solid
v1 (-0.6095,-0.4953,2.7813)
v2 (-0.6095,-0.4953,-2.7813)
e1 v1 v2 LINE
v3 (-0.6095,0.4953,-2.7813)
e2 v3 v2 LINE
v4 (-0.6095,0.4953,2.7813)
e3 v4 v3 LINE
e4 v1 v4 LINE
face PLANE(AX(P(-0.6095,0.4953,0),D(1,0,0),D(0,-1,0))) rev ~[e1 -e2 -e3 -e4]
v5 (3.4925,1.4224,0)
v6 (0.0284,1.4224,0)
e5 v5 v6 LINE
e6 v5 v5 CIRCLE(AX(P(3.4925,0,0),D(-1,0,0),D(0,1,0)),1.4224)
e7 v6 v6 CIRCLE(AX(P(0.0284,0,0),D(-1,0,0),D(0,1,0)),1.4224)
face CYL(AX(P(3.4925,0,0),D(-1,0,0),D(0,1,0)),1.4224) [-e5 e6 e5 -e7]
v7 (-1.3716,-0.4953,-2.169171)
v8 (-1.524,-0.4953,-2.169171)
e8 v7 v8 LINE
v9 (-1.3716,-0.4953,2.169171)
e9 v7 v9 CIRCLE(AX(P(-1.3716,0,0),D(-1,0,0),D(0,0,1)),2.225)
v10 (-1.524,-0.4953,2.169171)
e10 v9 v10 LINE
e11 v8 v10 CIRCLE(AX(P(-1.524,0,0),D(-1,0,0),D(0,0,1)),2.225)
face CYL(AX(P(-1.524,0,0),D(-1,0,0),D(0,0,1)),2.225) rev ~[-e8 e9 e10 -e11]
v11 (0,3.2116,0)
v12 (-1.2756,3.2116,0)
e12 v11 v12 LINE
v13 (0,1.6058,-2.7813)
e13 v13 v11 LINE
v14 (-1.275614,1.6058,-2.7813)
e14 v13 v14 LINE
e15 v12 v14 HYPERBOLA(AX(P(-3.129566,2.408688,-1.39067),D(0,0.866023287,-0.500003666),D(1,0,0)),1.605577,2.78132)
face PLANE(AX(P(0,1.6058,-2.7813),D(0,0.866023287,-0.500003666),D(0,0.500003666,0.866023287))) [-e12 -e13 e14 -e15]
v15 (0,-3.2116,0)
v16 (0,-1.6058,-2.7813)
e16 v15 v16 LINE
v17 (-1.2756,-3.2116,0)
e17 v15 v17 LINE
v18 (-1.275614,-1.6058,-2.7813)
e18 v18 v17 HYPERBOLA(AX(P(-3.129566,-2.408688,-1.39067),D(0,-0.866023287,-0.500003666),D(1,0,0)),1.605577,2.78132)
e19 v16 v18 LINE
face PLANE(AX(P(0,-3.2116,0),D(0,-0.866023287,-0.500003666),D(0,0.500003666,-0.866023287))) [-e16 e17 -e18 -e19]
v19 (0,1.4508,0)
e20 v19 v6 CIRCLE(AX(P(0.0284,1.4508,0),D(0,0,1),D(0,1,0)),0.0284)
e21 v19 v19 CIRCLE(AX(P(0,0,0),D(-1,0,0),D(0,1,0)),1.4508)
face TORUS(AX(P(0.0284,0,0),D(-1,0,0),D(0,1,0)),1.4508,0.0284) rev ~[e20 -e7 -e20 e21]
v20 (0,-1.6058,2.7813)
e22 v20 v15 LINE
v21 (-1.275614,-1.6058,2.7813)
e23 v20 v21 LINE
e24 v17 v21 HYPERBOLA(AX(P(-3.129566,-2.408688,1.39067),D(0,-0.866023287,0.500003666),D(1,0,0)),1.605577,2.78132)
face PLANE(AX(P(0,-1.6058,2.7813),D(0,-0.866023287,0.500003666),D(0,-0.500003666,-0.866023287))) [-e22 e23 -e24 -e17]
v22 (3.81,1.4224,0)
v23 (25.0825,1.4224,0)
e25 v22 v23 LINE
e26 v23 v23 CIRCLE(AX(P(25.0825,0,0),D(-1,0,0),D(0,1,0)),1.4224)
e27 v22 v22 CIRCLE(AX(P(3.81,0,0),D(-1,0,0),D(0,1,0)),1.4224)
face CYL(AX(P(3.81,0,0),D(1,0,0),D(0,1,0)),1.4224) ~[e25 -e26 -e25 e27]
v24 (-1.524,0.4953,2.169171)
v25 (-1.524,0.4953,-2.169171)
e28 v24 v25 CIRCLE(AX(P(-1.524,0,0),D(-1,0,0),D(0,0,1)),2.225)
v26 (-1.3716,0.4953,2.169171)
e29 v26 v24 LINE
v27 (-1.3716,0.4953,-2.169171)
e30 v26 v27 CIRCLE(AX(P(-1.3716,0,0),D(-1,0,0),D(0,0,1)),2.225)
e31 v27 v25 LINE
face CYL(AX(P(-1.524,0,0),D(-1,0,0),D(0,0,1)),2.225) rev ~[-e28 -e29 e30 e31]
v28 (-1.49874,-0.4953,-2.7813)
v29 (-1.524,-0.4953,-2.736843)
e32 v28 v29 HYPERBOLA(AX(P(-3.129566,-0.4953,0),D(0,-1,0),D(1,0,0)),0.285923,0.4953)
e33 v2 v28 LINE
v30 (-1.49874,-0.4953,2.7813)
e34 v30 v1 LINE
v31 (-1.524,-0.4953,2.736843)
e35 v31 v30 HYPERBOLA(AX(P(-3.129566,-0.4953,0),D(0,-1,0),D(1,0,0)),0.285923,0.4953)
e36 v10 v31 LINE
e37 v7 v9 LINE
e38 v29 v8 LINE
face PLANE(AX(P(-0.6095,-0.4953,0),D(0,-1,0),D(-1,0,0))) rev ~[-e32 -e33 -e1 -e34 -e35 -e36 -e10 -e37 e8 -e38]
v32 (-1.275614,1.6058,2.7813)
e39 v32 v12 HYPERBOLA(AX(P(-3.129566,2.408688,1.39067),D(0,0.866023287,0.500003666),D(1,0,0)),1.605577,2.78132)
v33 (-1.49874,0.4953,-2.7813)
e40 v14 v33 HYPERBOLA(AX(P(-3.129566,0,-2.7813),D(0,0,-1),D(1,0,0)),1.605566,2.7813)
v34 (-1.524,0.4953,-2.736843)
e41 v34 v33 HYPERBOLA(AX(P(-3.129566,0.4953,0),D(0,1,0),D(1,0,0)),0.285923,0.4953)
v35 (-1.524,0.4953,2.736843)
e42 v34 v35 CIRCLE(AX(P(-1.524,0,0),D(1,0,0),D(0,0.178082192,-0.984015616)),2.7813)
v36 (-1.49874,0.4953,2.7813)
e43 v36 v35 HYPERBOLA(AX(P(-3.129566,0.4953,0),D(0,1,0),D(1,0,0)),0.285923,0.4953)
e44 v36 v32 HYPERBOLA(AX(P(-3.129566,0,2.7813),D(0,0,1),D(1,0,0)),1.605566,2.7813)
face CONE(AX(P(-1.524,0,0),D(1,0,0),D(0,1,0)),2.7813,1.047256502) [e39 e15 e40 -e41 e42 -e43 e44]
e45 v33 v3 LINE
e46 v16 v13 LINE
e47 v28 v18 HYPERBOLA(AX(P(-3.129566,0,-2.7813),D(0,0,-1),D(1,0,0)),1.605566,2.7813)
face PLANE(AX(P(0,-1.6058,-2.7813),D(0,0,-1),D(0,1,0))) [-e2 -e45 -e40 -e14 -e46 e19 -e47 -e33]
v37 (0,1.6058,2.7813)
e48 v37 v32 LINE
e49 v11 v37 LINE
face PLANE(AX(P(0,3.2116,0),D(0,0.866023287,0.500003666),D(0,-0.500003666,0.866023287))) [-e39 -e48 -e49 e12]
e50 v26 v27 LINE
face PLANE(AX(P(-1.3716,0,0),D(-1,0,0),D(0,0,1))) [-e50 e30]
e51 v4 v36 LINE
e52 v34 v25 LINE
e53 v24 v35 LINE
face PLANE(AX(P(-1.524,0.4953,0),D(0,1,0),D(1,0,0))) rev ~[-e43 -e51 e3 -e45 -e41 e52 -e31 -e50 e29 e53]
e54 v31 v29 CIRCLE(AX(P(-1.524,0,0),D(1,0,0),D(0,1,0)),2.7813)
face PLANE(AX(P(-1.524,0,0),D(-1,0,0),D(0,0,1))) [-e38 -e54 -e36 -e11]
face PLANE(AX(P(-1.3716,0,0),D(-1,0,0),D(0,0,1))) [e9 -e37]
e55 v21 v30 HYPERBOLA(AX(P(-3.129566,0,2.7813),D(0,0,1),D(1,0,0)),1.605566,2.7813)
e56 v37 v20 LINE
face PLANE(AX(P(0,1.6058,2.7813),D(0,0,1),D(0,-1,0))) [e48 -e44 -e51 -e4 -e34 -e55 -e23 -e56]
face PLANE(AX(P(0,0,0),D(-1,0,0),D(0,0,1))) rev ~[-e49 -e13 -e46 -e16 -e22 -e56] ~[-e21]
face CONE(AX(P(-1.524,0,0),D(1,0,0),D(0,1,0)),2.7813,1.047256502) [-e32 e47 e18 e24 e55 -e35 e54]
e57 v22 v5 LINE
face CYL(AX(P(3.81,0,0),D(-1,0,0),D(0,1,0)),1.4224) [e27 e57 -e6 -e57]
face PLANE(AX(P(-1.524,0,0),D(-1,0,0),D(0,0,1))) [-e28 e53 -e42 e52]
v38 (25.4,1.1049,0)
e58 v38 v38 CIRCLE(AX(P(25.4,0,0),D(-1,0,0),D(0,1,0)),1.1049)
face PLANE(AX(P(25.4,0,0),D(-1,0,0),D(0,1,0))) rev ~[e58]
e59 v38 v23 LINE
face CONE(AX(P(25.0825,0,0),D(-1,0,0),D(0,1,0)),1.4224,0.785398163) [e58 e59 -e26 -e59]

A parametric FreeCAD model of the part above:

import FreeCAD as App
import Part
import Sketcher
from FreeCAD import Vector
Q = App.Units.Quantity


def edges_at(feature, points):
    """Names of the edges that pass closest to the given points."""
    edges = feature.Shape.Edges
    near = lambda p: min(range(len(edges)), key=lambda i: edges[i].distToShape(Part.Vertex(*p))[0])
    return sorted({f"Edge{near(p) + 1}" for p in points})


def add_polygon(sketch, points):
    """Adds a closed chain of lines whose ends are joined by coincident constraints."""
    first, n = sketch.GeometryCount, len(points)
    for a, b in zip(points, points[1:] + points[:1]):
        sketch.addGeometry(Part.LineSegment(App.Vector(*a, 0), App.Vector(*b, 0)), False)
    for i in range(n):
        sketch.addConstraint(Sketcher.Constraint("Coincident", first + i, 2, first + (i + 1) % n, 1))

doc = App.newDocument("Part")
body = doc.addObject("PartDesign::Body", "Body")

# Sketch on XY plane
sketch1 = doc.addObject("Sketcher::SketchObject", "Sketch")
body.addObject(sketch1)
sketch1.AttachmentSupport = (doc.XY_Plane, [""])
sketch1.MapMode = "FlatFace"
add_polygon(sketch1, [(25.4, 1.4224), (0, 1.4224), (0, 0), (25.4, 0)])  # lines 0-3
sketch1.addConstraint(Sketcher.Constraint("Horizontal", 0))
sketch1.addConstraint(Sketcher.Constraint("Vertical", 1))
sketch1.addConstraint(Sketcher.Constraint("Horizontal", 2))
sketch1.addConstraint(Sketcher.Constraint("Vertical", 3))
sketch1.addConstraint(Sketcher.Constraint("Coincident", 1, 2, -1, 1))
sketch1.addConstraint(Sketcher.Constraint("DistanceX", 0, 2, 0, 1, Q("1 in")))
sketch1.addConstraint(Sketcher.Constraint("DistanceY", 1, 2, 1, 1, Q("0.056 in")))
revolution = doc.addObject("PartDesign::Revolution", "Revolution")
body.addObject(revolution)
revolution.Profile = sketch1
revolution.ReferenceAxis = (sketch1, ["H_Axis"])
revolution.Angle = 360

# Sketch on YZ plane
sketch2 = doc.addObject("Sketcher::SketchObject", "Sketch001")
body.addObject(sketch2)
sketch2.AttachmentSupport = (doc.YZ_Plane, [""])
sketch2.MapMode = "FlatFace"
add_polygon(sketch2, [(1.6058, 2.7813), (3.2116, 0), (1.6058, -2.7813), (-1.6058, -2.7813), (-3.2116, 0), (-1.6058, 2.7813)])  # lines 0-5
sketch2.addConstraint(Sketcher.Constraint("Horizontal", 2))
sketch2.addConstraint(Sketcher.Constraint("Horizontal", 5))
sketch2.addConstraint(Sketcher.Constraint("Symmetric", 0, 2, 3, 2, -1, 1))
sketch2.addConstraint(Sketcher.Constraint("Symmetric", 1, 2, 4, 2, -1, 1))
sketch2.addConstraint(Sketcher.Constraint("PointOnObject", 0, 2, -1))
sketch2.addConstraint(Sketcher.Constraint("Parallel", 0, 3))
sketch2.addConstraint(Sketcher.Constraint("Vertical", 2, 2, 4, 2))
sketch2.addConstraint(Sketcher.Constraint("Angle", 0, Q("-59.9998 deg")))
sketch2.addConstraint(Sketcher.Constraint("DistanceY", 2, 2, 4, 2, Q("0.219 in")))
sketch2.addConstraint(Sketcher.Constraint("DistanceX", 2, 2, 2, 1, Q("3.2116 mm")))
pad1 = doc.addObject("PartDesign::Pad", "Pad")
body.addObject(pad1)
pad1.Profile = sketch2
pad1.Length = Q("0.06 in")
pad1.Reversed = True

# Sketch on YZ plane
sketch3 = doc.addObject("Sketcher::SketchObject", "Sketch002")
body.addObject(sketch3)
sketch3.AttachmentSupport = (doc.YZ_Plane, [""])
sketch3.MapMode = "FlatFace"
sketch3.AttachmentOffset = App.Placement(Vector(0, 0, -0.06 * 25.4), App.Rotation())
sketch3.addGeometry(Part.Circle(Vector(0, 0, 0), Vector(0, 0, 1), 2.225), False)
sketch3.addConstraint(Sketcher.Constraint("Coincident", 0, 3, -1, 1))
sketch3.addConstraint(Sketcher.Constraint("Diameter", 0, Q("0.1752 in")))
pocket1 = doc.addObject("PartDesign::Pocket", "Pocket")
body.addObject(pocket1)
pocket1.Profile = sketch3
pocket1.Length = Q("0.006 in")
pocket1.Reversed = True

# Sketch on XY plane
sketch4 = doc.addObject("Sketcher::SketchObject", "Sketch003")
body.addObject(sketch4)
sketch4.AttachmentSupport = (doc.XY_Plane, [""])
sketch4.MapMode = "FlatFace"
add_polygon(sketch4, [(-0.6095, 0.4953), (-1.524, 0.4953), (-1.524, -0.4953), (-0.6095, -0.4953)])  # lines 0-3
sketch4.addConstraint(Sketcher.Constraint("Horizontal", 0))
sketch4.addConstraint(Sketcher.Constraint("Vertical", 1))
sketch4.addConstraint(Sketcher.Constraint("Horizontal", 2))
sketch4.addConstraint(Sketcher.Constraint("Vertical", 3))
sketch4.addConstraint(Sketcher.Constraint("DistanceX", 0, 2, 0, 1, Q("0.036 in")))
sketch4.addConstraint(Sketcher.Constraint("DistanceY", 1, 2, 1, 1, Q("0.039 in")))
sketch4.addConstraint(Sketcher.Constraint("DistanceX", 0, 2, -1, 1, Q("0.06 in")))
sketch4.addConstraint(Sketcher.Constraint("DistanceY", -1, 1, 0, 2, Q("0.0195 in")))
pocket2 = doc.addObject("PartDesign::Pocket", "Pocket001")
body.addObject(pocket2)
pocket2.Profile = sketch4
pocket2.Type = "ThroughAll"
pocket2.Midplane = True

# Sketch on XY plane
sketch5 = doc.addObject("Sketcher::SketchObject", "Sketch004")
body.addObject(sketch5)
sketch5.AttachmentSupport = (doc.XY_Plane, [""])
sketch5.MapMode = "FlatFace"
add_polygon(sketch5, [(-1.2756, 3.2116), (-1.524, 3.2116), (-1.524, 2.7813)])  # lines 0-2
sketch5.addConstraint(Sketcher.Constraint("Horizontal", 0))
sketch5.addConstraint(Sketcher.Constraint("Vertical", 1))
sketch5.addConstraint(Sketcher.Constraint("DistanceX", 0, 2, -1, 1, Q("0.06 in")))
sketch5.addConstraint(Sketcher.Constraint("DistanceX", 0, 2, 0, 1, Q("0.2484 mm")))
sketch5.addConstraint(Sketcher.Constraint("DistanceY", 1, 2, 1, 1, Q("0.4303 mm")))
sketch5.addConstraint(Sketcher.Constraint("DistanceY", -1, 1, 1, 2, Q("0.1095 in")))
groove = doc.addObject("PartDesign::Groove", "Groove")
body.addObject(groove)
groove.Profile = sketch5
groove.ReferenceAxis = (sketch5, ["H_Axis"])
groove.Angle = 360
doc.recompute()

fillet = doc.addObject("PartDesign::Fillet", "Fillet")
body.addObject(fillet)
fillet.Base = (groove, edges_at(groove, [(0, -1.422, 0)]))
fillet.Radius = 0.0284
doc.recompute()

chamfer = doc.addObject("PartDesign::Chamfer", "Chamfer")
body.addObject(chamfer)
chamfer.Base = (fillet, edges_at(fillet, [(25.4, -1.422, 0)]))
chamfer.ChamferType = "Two distances"
chamfer.Size = Q("0.0125 in")
chamfer.Size2 = Q("0.0125 in")

doc.recompute()
